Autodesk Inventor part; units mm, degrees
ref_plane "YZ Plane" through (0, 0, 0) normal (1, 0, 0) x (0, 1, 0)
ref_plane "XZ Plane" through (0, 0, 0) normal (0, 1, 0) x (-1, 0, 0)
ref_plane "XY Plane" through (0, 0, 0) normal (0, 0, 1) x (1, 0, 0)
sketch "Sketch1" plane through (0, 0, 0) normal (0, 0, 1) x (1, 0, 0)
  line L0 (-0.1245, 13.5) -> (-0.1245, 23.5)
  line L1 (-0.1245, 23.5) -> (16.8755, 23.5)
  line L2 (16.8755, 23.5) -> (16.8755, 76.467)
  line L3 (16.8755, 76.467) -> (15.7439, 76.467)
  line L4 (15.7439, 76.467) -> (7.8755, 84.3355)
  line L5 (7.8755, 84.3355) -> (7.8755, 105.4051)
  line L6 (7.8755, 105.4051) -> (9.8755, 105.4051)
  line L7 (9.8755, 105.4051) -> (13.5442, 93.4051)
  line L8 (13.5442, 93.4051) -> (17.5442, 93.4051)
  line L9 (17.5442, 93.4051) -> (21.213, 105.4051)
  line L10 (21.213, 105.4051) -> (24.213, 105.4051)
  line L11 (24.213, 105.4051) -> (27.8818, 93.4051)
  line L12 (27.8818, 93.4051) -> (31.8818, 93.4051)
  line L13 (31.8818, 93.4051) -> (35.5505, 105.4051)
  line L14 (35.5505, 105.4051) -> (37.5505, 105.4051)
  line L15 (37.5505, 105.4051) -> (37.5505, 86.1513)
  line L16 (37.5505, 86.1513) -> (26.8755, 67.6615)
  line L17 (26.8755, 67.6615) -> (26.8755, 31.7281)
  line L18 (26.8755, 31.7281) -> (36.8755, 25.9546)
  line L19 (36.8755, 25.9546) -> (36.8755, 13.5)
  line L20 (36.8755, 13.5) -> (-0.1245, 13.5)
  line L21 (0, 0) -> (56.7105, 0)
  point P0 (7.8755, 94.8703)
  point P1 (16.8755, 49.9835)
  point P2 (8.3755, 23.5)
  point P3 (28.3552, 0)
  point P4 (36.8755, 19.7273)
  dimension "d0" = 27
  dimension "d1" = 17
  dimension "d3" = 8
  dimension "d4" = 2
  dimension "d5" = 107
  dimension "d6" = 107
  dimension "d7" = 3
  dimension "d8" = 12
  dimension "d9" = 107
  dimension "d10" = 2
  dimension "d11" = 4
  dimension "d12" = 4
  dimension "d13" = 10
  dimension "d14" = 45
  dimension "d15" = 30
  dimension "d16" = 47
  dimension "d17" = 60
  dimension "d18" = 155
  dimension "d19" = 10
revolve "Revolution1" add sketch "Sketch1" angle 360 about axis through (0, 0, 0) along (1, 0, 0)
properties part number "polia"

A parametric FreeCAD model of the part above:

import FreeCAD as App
import Part
import Sketcher
from FreeCAD import Vector
Q = App.Units.Quantity

doc = App.newDocument("Part")
body = doc.addObject("PartDesign::Body", "Body")

sketch1 = body.newObject("Sketcher::SketchObject", "Sketch")
sketch1.AttachmentSupport = (doc.getObject("XY_Plane"), [""])
sketch1.MapMode = "FlatFace"
sketch1.addGeometry(Part.LineSegment(Vector(-0.1, 23.5, 0), Vector(-0.1, 13.5, 0)), False)
sketch1.addGeometry(Part.LineSegment(Vector(-0.1, 13.5, 0), Vector(36.9, 13.5, 0)), False)
sketch1.addGeometry(Part.LineSegment(Vector(36.9, 13.5, 0), Vector(36.9, 26, 0)), False)
sketch1.addGeometry(Part.LineSegment(Vector(36.9, 26, 0), Vector(26.9, 31.7, 0)), False)
sketch1.addGeometry(Part.LineSegment(Vector(26.9, 31.7, 0), Vector(26.9, 67.7, 0)), False)
sketch1.addGeometry(Part.LineSegment(Vector(26.9, 67.7, 0), Vector(37.6, 86.2, 0)), False)
sketch1.addGeometry(Part.LineSegment(Vector(37.6, 86.2, 0), Vector(37.6, 105.4, 0)), False)
sketch1.addGeometry(Part.LineSegment(Vector(37.6, 105.4, 0), Vector(35.6, 105.4, 0)), False)
sketch1.addGeometry(Part.LineSegment(Vector(35.6, 105.4, 0), Vector(31.9, 93.4, 0)), False)
sketch1.addGeometry(Part.LineSegment(Vector(31.9, 93.4, 0), Vector(27.9, 93.4, 0)), False)
sketch1.addGeometry(Part.LineSegment(Vector(27.9, 93.4, 0), Vector(24.2, 105.4, 0)), False)
sketch1.addGeometry(Part.LineSegment(Vector(24.2, 105.4, 0), Vector(21.2, 105.4, 0)), False)
sketch1.addGeometry(Part.LineSegment(Vector(21.2, 105.4, 0), Vector(17.5, 93.4, 0)), False)
sketch1.addGeometry(Part.LineSegment(Vector(17.5, 93.4, 0), Vector(13.5, 93.4, 0)), False)
sketch1.addGeometry(Part.LineSegment(Vector(13.5, 93.4, 0), Vector(9.9, 105.4, 0)), False)
sketch1.addGeometry(Part.LineSegment(Vector(9.9, 105.4, 0), Vector(7.9, 105.4, 0)), False)
sketch1.addGeometry(Part.LineSegment(Vector(7.9, 105.4, 0), Vector(7.9, 84.3, 0)), False)
sketch1.addGeometry(Part.LineSegment(Vector(7.9, 84.3, 0), Vector(15.7, 76.5, 0)), False)
sketch1.addGeometry(Part.LineSegment(Vector(15.7, 76.5, 0), Vector(16.9, 76.5, 0)), False)
sketch1.addGeometry(Part.LineSegment(Vector(16.9, 76.5, 0), Vector(16.9, 23.5, 0)), False)
sketch1.addGeometry(Part.LineSegment(Vector(16.9, 23.5, 0), Vector(-0.1, 23.5, 0)), False)
sketch1.addConstraint(Sketcher.Constraint("Coincident", 0, 2, 1, 1))
sketch1.addConstraint(Sketcher.Constraint("Coincident", 1, 2, 2, 1))
sketch1.addConstraint(Sketcher.Constraint("Coincident", 2, 2, 3, 1))
sketch1.addConstraint(Sketcher.Constraint("Coincident", 3, 2, 4, 1))
sketch1.addConstraint(Sketcher.Constraint("Coincident", 4, 2, 5, 1))
sketch1.addConstraint(Sketcher.Constraint("Coincident", 5, 2, 6, 1))
sketch1.addConstraint(Sketcher.Constraint("Coincident", 6, 2, 7, 1))
sketch1.addConstraint(Sketcher.Constraint("Coincident", 7, 2, 8, 1))
sketch1.addConstraint(Sketcher.Constraint("Coincident", 8, 2, 9, 1))
sketch1.addConstraint(Sketcher.Constraint("Coincident", 9, 2, 10, 1))
sketch1.addConstraint(Sketcher.Constraint("Coincident", 10, 2, 11, 1))
sketch1.addConstraint(Sketcher.Constraint("Coincident", 11, 2, 12, 1))
sketch1.addConstraint(Sketcher.Constraint("Coincident", 12, 2, 13, 1))
sketch1.addConstraint(Sketcher.Constraint("Coincident", 13, 2, 14, 1))
sketch1.addConstraint(Sketcher.Constraint("Coincident", 14, 2, 15, 1))
sketch1.addConstraint(Sketcher.Constraint("Coincident", 15, 2, 16, 1))
sketch1.addConstraint(Sketcher.Constraint("Coincident", 16, 2, 17, 1))
sketch1.addConstraint(Sketcher.Constraint("Coincident", 17, 2, 18, 1))
sketch1.addConstraint(Sketcher.Constraint("Coincident", 18, 2, 19, 1))
sketch1.addConstraint(Sketcher.Constraint("Coincident", 19, 2, 20, 1))
sketch1.addConstraint(Sketcher.Constraint("Coincident", 20, 2, 0, 1))
sketch1.addConstraint(Sketcher.Constraint("Vertical", 0))
sketch1.addConstraint(Sketcher.Constraint("Horizontal", 1))
sketch1.addConstraint(Sketcher.Constraint("Vertical", 2))
sketch1.addConstraint(Sketcher.Constraint("Vertical", 4))
sketch1.addConstraint(Sketcher.Constraint("Vertical", 6))
sketch1.addConstraint(Sketcher.Constraint("Horizontal", 7))
sketch1.addConstraint(Sketcher.Constraint("Horizontal", 9))
sketch1.addConstraint(Sketcher.Constraint("Horizontal", 11))
sketch1.addConstraint(Sketcher.Constraint("Horizontal", 13))
sketch1.addConstraint(Sketcher.Constraint("Horizontal", 15))
sketch1.addConstraint(Sketcher.Constraint("Vertical", 16))
sketch1.addConstraint(Sketcher.Constraint("Horizontal", 18))
sketch1.addConstraint(Sketcher.Constraint("Vertical", 19))
sketch1.addConstraint(Sketcher.Constraint("Horizontal", 20))
sketch1.addConstraint(Sketcher.Constraint("Perpendicular", 3, 5))
sketch1.addConstraint(Sketcher.Constraint("Parallel", 8, 12))
sketch1.addConstraint(Sketcher.Constraint("Parallel", 10, 14))
sketch1.addConstraint(Sketcher.Constraint("Horizontal", 7, 2, 10, 2))
sketch1.addConstraint(Sketcher.Constraint("Horizontal", 9, 2, 12, 2))
sketch1.addConstraint(Sketcher.Constraint("Horizontal", 11, 2, 14, 2))
sketch1.addConstraint(Sketcher.Constraint("Equal", 9, 13))
sketch1.addConstraint(Sketcher.Constraint("Equal", 7, 15))
sketch1.addConstraint(Sketcher.Constraint("Equal", 8, 10))
sketch1.addConstraint(Sketcher.Constraint("DistanceX", 7, 2, 7, 1, Q("2 mm")))
sketch1.addConstraint(Sketcher.Constraint("DistanceX", 9, 2, 9, 1, Q("4 mm")))
sketch1.addConstraint(Sketcher.Constraint("DistanceX", 11, 2, 11, 1, Q("3 mm")))
sketch1.addConstraint(Sketcher.Constraint("DistanceX", 20, 2, 20, 1, Q("17 mm")))
sketch1.addConstraint(Sketcher.Constraint("DistanceY", 0, 2, 0, 1, Q("10 mm")))
sketch1.addConstraint(Sketcher.Constraint("Angle", 5, Q("60.0002 deg")))
sketch1.addConstraint(Sketcher.Constraint("Angle", 8, Q("-106.9997 deg")))
sketch1.addConstraint(Sketcher.Constraint("Angle", 17, Q("-45.0004 deg")))
sketch1.addConstraint(Sketcher.Constraint("DistanceX", 3, 2, 2, 2, Q("10 mm")))
sketch1.addConstraint(Sketcher.Constraint("DistanceX", 0, 2, 3, 2, Q("27 mm")))
sketch1.addConstraint(Sketcher.Constraint("DistanceY", 8, 2, 7, 2, Q("12 mm")))
sketch1.addConstraint(Sketcher.Constraint("DistanceX", 16, 2, 18, 2, Q("9 mm")))
sketch1.addConstraint(Sketcher.Constraint("DistanceY", -1, 1, 0, 2, Q("13.5 mm")))
sketch1.addConstraint(Sketcher.Constraint("DistanceY", 19, 2, 19, 1, Q("52.967 mm")))
sketch1.addConstraint(Sketcher.Constraint("DistanceX", 18, 1, 18, 2, Q("1.1316 mm")))
sketch1.addConstraint(Sketcher.Constraint("DistanceY", 2, 1, 2, 2, Q("12.4546 mm")))
sketch1.addConstraint(Sketcher.Constraint("DistanceY", 4, 1, 4, 2, Q("35.9334 mm")))
sketch1.addConstraint(Sketcher.Constraint("DistanceY", 6, 1, 6, 2, Q("19.2538 mm")))
sketch1.addConstraint(Sketcher.Constraint("DistanceX", -1, 1, 10, 2, Q("24.213 mm")))
revolution = body.newObject("PartDesign::Revolution", "Revolution")
revolution.Profile = sketch1
revolution.ReferenceAxis = (sketch1, ["H_Axis"])
revolution.Angle = 360

doc.recompute()
